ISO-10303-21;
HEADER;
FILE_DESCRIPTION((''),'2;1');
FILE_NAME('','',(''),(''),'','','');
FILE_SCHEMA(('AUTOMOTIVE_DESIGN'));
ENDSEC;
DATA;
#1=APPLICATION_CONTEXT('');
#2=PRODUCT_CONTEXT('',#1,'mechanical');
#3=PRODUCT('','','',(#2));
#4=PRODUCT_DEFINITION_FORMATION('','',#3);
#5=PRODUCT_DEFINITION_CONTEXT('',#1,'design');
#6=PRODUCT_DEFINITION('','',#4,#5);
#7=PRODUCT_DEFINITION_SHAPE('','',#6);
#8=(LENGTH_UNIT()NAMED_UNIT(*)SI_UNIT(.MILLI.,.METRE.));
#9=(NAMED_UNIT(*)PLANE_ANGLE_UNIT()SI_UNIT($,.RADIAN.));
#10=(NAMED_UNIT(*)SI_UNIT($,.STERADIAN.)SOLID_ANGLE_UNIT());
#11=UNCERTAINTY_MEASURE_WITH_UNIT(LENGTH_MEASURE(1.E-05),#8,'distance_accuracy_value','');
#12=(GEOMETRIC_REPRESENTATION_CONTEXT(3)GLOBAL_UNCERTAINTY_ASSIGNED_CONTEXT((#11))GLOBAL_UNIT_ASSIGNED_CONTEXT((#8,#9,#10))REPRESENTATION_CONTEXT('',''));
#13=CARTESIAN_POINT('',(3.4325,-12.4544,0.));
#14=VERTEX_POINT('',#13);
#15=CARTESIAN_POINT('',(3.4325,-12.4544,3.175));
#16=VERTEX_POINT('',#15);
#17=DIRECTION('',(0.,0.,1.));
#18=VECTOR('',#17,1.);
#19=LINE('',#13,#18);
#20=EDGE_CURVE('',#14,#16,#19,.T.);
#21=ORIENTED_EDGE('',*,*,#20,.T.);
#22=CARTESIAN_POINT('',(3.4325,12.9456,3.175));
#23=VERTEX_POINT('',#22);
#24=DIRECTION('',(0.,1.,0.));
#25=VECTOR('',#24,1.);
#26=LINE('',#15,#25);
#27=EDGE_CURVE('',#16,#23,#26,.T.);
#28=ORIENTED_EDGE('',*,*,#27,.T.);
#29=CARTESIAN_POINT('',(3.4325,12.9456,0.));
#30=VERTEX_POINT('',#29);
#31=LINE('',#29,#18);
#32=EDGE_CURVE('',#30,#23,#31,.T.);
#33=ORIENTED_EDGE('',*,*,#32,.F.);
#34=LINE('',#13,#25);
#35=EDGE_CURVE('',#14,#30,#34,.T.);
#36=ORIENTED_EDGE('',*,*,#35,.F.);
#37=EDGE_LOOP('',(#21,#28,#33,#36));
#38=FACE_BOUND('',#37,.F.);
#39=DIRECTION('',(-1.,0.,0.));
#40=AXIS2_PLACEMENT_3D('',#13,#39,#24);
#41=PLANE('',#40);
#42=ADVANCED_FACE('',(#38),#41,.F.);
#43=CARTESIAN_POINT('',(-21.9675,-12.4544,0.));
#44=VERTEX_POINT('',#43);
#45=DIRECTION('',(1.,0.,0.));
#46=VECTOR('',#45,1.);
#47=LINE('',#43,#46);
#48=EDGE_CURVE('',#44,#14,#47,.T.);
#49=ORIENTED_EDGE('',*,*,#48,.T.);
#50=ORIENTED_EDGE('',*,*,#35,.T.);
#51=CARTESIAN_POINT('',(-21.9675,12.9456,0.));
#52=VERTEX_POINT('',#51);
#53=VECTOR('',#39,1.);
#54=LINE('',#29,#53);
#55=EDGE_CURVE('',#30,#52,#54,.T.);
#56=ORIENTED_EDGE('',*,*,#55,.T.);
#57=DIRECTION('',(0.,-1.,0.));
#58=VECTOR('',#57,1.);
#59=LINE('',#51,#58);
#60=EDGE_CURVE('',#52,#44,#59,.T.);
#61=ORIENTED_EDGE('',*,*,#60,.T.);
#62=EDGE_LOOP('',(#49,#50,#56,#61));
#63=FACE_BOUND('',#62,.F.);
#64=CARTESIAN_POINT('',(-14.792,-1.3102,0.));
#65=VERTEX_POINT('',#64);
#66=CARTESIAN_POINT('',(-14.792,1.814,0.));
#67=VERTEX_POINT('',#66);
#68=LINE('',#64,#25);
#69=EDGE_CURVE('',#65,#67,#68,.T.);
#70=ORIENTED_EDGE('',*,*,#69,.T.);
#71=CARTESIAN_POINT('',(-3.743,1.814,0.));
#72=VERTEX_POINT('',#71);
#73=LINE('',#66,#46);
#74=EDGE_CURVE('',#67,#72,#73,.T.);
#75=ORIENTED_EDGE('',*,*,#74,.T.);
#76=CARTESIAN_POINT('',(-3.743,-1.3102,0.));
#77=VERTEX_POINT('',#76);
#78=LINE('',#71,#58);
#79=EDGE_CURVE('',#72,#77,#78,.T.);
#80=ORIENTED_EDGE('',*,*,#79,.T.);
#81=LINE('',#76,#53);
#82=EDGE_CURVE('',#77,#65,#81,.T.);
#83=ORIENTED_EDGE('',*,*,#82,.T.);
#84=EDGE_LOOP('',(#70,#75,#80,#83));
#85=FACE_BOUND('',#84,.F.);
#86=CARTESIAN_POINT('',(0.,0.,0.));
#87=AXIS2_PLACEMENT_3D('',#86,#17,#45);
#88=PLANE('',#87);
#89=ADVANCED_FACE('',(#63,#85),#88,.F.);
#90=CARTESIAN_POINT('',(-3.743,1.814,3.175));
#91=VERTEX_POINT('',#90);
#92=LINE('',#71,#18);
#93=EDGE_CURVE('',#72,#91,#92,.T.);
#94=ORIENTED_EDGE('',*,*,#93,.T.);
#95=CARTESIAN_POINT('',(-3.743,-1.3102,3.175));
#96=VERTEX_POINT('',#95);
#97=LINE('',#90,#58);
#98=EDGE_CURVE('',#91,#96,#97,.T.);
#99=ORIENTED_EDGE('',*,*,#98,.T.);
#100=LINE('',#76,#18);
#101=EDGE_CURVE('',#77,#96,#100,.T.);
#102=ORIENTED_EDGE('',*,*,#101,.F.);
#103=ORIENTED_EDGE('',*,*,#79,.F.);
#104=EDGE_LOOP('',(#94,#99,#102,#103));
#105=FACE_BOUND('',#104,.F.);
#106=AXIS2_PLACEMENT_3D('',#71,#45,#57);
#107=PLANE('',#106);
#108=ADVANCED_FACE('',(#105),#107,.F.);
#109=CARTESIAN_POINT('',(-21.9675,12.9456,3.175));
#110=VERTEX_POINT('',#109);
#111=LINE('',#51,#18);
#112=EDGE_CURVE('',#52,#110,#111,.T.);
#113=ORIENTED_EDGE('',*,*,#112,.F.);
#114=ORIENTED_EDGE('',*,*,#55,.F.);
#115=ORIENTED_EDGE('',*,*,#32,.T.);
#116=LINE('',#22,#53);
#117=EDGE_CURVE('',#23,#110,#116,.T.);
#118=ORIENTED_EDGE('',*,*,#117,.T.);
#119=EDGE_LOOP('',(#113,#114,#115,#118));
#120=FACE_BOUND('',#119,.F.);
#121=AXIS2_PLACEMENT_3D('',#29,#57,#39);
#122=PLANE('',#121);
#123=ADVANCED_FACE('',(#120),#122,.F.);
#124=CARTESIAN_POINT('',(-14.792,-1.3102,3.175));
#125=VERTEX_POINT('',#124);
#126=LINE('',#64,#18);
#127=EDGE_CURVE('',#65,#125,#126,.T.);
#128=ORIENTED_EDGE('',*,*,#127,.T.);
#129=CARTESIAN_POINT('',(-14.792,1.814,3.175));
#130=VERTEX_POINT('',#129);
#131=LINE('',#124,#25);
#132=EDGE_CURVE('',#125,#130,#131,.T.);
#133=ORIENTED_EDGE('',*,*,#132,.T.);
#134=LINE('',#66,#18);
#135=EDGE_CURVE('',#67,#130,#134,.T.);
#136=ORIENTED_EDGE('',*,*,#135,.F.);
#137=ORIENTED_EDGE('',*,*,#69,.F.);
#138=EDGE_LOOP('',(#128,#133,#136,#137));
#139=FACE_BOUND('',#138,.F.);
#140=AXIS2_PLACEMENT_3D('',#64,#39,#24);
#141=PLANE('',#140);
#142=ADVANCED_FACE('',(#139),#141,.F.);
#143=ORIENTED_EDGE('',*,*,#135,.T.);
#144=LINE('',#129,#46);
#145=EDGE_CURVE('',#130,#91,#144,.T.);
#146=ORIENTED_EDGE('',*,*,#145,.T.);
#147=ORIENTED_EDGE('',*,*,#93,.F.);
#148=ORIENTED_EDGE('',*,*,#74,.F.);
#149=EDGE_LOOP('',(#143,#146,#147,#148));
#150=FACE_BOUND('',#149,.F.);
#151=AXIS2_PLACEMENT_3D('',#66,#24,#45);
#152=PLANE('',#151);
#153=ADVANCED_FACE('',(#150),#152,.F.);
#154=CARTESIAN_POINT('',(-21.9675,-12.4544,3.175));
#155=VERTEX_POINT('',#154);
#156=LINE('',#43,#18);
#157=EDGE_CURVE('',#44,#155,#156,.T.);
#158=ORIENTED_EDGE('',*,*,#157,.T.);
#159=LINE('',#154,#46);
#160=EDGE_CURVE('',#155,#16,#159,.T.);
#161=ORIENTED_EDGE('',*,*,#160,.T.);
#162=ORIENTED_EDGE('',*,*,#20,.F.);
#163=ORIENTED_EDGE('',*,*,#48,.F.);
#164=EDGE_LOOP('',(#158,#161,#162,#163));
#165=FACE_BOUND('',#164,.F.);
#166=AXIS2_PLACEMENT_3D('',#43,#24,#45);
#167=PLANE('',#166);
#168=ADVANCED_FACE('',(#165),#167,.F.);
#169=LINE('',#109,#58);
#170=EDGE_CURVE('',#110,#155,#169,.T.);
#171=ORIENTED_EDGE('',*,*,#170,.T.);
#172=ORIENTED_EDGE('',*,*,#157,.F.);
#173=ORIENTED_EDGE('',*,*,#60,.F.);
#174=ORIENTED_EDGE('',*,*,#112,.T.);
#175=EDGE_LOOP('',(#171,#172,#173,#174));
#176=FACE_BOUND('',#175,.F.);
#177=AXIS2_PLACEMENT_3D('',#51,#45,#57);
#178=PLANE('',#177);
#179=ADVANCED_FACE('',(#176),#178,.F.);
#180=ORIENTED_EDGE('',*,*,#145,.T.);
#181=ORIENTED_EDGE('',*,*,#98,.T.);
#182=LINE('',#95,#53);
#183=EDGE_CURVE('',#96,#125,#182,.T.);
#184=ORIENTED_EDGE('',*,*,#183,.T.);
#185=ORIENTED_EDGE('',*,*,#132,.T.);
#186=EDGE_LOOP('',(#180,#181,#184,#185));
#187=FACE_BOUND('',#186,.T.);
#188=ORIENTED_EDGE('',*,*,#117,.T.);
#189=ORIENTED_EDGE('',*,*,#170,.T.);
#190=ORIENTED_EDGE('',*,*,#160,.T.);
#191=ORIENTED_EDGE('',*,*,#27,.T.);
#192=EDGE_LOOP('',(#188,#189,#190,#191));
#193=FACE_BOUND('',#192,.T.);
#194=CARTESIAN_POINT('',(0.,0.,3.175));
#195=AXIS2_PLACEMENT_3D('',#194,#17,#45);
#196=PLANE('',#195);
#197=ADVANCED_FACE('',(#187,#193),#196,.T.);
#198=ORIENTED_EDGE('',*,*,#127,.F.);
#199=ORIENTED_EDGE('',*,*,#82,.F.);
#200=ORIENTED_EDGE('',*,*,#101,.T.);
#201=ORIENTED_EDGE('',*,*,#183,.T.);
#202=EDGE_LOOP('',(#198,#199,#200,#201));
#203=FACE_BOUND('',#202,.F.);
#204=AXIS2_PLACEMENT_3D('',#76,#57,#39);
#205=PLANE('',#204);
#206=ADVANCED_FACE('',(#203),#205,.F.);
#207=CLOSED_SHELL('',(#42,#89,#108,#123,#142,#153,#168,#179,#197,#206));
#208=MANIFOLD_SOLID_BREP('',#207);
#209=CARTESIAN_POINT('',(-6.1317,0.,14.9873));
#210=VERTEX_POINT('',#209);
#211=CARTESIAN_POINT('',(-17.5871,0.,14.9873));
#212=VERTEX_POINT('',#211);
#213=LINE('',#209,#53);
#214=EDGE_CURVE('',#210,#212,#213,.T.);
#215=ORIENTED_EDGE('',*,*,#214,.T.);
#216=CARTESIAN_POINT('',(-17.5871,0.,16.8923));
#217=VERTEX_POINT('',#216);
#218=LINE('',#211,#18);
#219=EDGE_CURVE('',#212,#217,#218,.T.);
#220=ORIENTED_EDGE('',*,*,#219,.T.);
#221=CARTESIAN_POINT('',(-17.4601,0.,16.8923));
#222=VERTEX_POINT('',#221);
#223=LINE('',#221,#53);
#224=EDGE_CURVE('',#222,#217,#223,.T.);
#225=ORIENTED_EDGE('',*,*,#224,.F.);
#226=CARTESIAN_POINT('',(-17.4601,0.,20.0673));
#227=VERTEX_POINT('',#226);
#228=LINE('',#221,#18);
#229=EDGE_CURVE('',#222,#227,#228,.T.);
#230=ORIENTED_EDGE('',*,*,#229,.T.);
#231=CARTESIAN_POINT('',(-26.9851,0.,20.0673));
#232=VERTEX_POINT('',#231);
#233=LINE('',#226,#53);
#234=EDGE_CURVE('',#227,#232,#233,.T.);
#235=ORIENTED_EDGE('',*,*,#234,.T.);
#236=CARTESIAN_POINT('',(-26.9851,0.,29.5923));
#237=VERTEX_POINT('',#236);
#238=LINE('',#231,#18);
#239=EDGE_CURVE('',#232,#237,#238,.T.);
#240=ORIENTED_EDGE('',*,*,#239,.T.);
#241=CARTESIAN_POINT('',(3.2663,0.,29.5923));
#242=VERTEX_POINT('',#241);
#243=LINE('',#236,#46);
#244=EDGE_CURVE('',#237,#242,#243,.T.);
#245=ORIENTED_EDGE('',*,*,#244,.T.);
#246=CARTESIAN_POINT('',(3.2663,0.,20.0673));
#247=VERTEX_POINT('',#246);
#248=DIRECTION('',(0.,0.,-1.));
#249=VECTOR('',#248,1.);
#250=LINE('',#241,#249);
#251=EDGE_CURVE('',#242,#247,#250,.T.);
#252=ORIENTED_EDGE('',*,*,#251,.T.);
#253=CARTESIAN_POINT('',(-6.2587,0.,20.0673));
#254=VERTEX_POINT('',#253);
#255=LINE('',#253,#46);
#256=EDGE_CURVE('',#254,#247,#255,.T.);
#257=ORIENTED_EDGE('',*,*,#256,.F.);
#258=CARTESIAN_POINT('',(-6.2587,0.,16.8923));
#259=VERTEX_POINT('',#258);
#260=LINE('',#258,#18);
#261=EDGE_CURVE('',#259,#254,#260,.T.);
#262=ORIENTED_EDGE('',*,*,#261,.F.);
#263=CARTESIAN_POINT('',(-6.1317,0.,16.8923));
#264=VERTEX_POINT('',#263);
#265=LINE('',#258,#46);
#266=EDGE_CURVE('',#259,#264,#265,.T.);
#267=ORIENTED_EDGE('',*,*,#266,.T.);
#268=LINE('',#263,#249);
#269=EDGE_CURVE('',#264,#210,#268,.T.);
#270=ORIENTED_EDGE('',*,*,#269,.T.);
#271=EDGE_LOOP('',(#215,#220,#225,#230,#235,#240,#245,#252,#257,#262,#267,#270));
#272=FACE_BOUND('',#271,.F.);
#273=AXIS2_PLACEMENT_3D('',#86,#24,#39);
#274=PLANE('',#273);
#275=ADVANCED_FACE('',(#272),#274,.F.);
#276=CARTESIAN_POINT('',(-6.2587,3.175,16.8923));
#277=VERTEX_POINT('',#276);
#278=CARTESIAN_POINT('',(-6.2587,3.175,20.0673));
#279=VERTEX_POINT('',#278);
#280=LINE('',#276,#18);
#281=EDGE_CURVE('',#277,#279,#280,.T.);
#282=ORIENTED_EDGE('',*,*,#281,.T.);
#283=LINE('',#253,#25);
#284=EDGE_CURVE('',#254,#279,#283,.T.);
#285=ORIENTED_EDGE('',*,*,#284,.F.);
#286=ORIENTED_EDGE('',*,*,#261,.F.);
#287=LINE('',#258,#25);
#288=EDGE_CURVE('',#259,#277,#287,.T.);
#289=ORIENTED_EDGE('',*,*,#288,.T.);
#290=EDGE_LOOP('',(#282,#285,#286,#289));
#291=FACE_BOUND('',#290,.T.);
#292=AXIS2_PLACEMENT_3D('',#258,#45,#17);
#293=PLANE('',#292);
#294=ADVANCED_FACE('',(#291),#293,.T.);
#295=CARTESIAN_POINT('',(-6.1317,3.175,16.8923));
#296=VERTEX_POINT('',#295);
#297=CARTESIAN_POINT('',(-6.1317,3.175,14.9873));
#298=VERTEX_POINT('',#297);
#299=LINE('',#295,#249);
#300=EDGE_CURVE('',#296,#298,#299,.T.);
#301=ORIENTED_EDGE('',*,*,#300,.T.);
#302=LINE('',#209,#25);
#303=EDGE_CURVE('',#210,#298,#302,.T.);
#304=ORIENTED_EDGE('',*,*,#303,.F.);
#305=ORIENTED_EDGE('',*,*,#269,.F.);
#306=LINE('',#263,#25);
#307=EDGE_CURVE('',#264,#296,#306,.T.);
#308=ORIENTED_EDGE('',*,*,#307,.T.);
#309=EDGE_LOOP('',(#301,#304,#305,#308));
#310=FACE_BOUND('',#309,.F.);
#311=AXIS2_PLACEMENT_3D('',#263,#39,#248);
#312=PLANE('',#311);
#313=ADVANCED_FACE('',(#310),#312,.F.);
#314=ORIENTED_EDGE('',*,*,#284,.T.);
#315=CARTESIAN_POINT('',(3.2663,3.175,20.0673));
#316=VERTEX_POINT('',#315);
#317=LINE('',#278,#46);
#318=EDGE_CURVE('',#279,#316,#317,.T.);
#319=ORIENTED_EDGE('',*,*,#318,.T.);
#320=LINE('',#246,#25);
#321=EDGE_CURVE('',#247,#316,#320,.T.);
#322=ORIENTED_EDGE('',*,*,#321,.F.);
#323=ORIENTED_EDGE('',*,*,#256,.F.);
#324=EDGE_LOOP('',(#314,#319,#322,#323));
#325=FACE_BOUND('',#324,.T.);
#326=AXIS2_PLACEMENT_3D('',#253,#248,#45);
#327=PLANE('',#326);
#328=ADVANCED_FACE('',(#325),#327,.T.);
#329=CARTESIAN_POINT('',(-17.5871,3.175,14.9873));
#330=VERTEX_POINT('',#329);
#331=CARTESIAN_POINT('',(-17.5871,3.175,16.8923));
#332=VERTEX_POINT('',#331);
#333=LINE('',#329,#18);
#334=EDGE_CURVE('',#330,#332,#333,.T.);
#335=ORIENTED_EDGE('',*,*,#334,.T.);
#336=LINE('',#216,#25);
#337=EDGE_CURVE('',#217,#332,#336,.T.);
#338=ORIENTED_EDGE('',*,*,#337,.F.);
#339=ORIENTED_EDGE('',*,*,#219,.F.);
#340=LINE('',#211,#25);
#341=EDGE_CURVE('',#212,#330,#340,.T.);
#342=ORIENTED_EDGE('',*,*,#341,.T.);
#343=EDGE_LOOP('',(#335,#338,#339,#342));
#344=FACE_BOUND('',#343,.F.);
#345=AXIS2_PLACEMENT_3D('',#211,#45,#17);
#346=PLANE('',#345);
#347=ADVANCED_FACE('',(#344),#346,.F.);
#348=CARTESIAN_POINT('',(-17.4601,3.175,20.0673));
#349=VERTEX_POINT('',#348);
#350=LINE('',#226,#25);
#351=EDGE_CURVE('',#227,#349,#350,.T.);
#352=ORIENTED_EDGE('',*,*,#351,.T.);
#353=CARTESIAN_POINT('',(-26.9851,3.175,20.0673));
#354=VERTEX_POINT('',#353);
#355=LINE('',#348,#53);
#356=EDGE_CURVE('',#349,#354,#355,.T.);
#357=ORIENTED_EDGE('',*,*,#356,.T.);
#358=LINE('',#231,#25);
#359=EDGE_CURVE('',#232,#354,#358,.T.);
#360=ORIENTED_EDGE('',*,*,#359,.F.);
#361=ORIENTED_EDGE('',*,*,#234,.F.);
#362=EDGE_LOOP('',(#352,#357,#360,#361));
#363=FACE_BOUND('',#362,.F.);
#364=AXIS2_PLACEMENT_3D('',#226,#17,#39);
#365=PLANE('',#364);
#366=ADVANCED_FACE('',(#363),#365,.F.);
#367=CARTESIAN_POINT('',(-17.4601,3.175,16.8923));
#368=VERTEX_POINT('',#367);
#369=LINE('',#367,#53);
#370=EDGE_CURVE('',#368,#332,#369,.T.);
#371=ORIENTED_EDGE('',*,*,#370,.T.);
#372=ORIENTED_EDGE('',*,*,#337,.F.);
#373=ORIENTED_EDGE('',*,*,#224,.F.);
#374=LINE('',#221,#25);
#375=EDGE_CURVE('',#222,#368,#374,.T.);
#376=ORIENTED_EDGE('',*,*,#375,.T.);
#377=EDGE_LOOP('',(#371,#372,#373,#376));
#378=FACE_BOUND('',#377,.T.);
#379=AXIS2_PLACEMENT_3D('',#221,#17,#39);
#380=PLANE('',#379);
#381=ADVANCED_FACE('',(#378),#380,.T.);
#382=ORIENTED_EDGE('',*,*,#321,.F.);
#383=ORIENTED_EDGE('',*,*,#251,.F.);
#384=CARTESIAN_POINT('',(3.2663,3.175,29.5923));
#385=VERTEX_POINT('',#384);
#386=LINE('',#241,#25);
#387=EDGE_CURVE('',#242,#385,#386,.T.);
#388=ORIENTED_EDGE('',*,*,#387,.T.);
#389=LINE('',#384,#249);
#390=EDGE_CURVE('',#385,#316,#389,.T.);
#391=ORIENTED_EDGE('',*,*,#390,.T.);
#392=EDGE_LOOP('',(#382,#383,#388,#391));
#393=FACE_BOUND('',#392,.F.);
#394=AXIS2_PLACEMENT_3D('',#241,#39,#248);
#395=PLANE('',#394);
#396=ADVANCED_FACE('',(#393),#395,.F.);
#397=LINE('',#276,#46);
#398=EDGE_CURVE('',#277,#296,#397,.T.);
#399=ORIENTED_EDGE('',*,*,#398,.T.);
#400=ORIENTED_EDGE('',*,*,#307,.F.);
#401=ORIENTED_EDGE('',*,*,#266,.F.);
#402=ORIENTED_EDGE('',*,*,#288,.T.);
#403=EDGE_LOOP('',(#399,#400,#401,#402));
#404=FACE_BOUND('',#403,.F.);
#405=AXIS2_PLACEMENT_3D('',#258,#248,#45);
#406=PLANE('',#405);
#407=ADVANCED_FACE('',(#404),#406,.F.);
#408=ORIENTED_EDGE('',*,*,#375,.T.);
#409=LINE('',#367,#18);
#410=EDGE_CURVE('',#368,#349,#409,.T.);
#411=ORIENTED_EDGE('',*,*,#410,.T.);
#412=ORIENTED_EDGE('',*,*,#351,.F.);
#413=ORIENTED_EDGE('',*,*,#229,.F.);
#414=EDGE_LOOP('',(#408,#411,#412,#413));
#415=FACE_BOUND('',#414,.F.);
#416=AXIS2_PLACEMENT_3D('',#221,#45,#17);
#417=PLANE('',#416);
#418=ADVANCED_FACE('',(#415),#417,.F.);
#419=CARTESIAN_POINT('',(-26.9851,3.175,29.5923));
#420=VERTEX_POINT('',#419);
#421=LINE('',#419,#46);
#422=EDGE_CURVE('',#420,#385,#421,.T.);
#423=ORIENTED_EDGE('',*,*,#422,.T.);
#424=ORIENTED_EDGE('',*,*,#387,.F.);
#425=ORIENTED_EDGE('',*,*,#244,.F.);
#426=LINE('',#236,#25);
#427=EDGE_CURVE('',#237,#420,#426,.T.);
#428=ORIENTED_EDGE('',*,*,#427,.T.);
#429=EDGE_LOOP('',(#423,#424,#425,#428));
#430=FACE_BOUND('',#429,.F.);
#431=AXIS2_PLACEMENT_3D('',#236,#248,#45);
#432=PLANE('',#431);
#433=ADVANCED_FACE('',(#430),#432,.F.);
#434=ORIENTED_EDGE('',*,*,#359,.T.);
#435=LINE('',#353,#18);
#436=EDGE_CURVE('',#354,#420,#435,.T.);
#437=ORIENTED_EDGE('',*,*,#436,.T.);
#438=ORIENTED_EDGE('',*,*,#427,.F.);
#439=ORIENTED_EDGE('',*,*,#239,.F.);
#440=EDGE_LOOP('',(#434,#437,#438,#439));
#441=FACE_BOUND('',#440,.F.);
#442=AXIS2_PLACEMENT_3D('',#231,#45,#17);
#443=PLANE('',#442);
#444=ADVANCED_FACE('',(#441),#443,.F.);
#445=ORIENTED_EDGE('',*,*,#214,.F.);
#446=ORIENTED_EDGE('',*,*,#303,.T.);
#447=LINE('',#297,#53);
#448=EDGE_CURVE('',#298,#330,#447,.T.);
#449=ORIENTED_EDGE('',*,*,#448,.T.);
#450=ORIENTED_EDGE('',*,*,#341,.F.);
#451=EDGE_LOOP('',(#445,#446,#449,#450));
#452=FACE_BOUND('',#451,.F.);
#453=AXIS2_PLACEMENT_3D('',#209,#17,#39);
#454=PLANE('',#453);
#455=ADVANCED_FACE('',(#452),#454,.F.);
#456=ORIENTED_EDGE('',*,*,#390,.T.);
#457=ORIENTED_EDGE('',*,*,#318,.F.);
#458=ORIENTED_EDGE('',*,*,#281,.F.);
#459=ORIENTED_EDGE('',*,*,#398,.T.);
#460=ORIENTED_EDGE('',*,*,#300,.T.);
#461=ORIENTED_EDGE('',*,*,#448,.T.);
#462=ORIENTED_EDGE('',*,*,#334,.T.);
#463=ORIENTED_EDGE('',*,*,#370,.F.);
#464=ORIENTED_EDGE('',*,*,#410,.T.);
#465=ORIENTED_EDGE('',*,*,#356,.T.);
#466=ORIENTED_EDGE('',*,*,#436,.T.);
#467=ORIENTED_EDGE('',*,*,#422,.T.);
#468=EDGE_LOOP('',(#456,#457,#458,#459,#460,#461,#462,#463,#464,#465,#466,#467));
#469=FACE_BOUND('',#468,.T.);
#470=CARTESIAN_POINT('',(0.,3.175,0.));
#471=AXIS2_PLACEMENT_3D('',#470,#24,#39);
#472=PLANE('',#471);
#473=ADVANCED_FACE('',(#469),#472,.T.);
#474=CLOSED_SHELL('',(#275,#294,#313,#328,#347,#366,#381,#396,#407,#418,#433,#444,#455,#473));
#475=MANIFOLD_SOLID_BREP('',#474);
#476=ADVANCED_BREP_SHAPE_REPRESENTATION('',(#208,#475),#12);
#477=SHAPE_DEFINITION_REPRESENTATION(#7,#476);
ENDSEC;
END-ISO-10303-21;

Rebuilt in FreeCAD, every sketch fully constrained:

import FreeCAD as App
import Part
import Sketcher
from FreeCAD import Vector
Q = App.Units.Quantity


def add_polygon(sketch, points):
    """Adds a closed chain of lines whose ends are joined by coincident constraints."""
    first, n = sketch.GeometryCount, len(points)
    for a, b in zip(points, points[1:] + points[:1]):
        sketch.addGeometry(Part.LineSegment(App.Vector(*a, 0), App.Vector(*b, 0)), False)
    for i in range(n):
        sketch.addConstraint(Sketcher.Constraint("Coincident", first + i, 2, first + (i + 1) % n, 1))

doc = App.newDocument("Part")
body = doc.addObject("PartDesign::Body", "Body")
body.AllowCompound = True

sketch1 = body.newObject("Sketcher::SketchObject", "Sketch")
sketch1.AttachmentSupport = (doc.getObject("XY_Plane"), [""])
sketch1.MapMode = "FlatFace"
add_polygon(sketch1, [(-22, 12.9), (-22, -12.5), (3.4, -12.5), (3.4, 12.9)])
add_polygon(sketch1, [(-3.7, -1.3), (-14.8, -1.3), (-14.8, 1.8), (-3.7, 1.8)])
sketch1.addConstraint(Sketcher.Constraint("Vertical", 0))
sketch1.addConstraint(Sketcher.Constraint("Horizontal", 1))
sketch1.addConstraint(Sketcher.Constraint("Vertical", 2))
sketch1.addConstraint(Sketcher.Constraint("Horizontal", 3))
sketch1.addConstraint(Sketcher.Constraint("Horizontal", 4))
sketch1.addConstraint(Sketcher.Constraint("Vertical", 5))
sketch1.addConstraint(Sketcher.Constraint("Horizontal", 6))
sketch1.addConstraint(Sketcher.Constraint("Vertical", 7))
sketch1.addConstraint(Sketcher.Constraint("Equal", 3, 0))
sketch1.addConstraint(Sketcher.Constraint("DistanceX", 1, 1, 1, 2, Q("1 in")))
sketch1.addConstraint(Sketcher.Constraint("DistanceX", 4, 2, 4, 1, Q("0.435 in")))
sketch1.addConstraint(Sketcher.Constraint("DistanceY", 5, 1, 5, 2, Q("0.123 in")))
sketch1.addConstraint(Sketcher.Constraint("DistanceX", 0, 2, 4, 2, Q("0.2825 in")))
sketch1.addConstraint(Sketcher.Constraint("DistanceX", 0, 2, -1, 1, Q("21.9675 mm")))
sketch1.addConstraint(Sketcher.Constraint("DistanceY", 0, 2, -1, 1, Q("12.4544 mm")))
sketch1.addConstraint(Sketcher.Constraint("DistanceY", 4, 2, -1, 1, Q("1.3102 mm")))
pad1 = body.newObject("PartDesign::Pad", "Pad")
pad1.Profile = sketch1
pad1.Length = Q("0.125 in")

sketch2 = body.newObject("Sketcher::SketchObject", "Sketch001")
sketch2.AttachmentSupport = (doc.getObject("XZ_Plane"), [""])
sketch2.MapMode = "FlatFace"
add_polygon(sketch2, [(-17.59, 16.89), (-17.46, 16.89), (-17.46, 20.07), (-26.99, 20.07), (-26.99, 29.59), (3.27, 29.59), (3.27, 20.07), (-6.26, 20.07), (-6.26, 16.89), (-6.13, 16.89), (-6.13, 14.99), (-17.59, 14.99)])
sketch2.addConstraint(Sketcher.Constraint("Horizontal", 0))
sketch2.addConstraint(Sketcher.Constraint("Vertical", 1))
sketch2.addConstraint(Sketcher.Constraint("Horizontal", 2))
sketch2.addConstraint(Sketcher.Constraint("Vertical", 3))
sketch2.addConstraint(Sketcher.Constraint("Horizontal", 4))
sketch2.addConstraint(Sketcher.Constraint("Vertical", 5))
sketch2.addConstraint(Sketcher.Constraint("Horizontal", 6))
sketch2.addConstraint(Sketcher.Constraint("Vertical", 7))
sketch2.addConstraint(Sketcher.Constraint("Horizontal", 8))
sketch2.addConstraint(Sketcher.Constraint("Vertical", 9))
sketch2.addConstraint(Sketcher.Constraint("Horizontal", 10))
sketch2.addConstraint(Sketcher.Constraint("Vertical", 11))
sketch2.addConstraint(Sketcher.Constraint("Horizontal", 2, 2, 5, 2))
sketch2.addConstraint(Sketcher.Constraint("Horizontal", 0, 2, 7, 2))
sketch2.addConstraint(Sketcher.Constraint("Equal", 2, 6))
sketch2.addConstraint(Sketcher.Constraint("Equal", 0, 8))
sketch2.addConstraint(Sketcher.Constraint("Equal", 6, 3))
sketch2.addConstraint(Sketcher.Constraint("DistanceX", 0, 1, 0, 2, Q("0.005 in")))
sketch2.addConstraint(Sketcher.Constraint("DistanceX", 2, 2, 2, 1, Q("0.375 in")))
sketch2.addConstraint(Sketcher.Constraint("DistanceX", 10, 2, 10, 1, Q("0.451 in")))
sketch2.addConstraint(Sketcher.Constraint("DistanceY", 9, 2, 9, 1, Q("0.075 in")))
sketch2.addConstraint(Sketcher.Constraint("DistanceY", 0, 2, 3, 2, Q("0.5 in")))
sketch2.addConstraint(Sketcher.Constraint("DistanceX", 0, 2, -1, 1, Q("0.6874 in")))
sketch2.addConstraint(Sketcher.Constraint("DistanceY", -1, 1, 0, 2, Q("16.8923 mm")))
pad2 = body.newObject("PartDesign::Pad", "Pad001")
pad2.Profile = sketch2
pad2.Length = Q("0.125 in")
pad2.Reversed = True

doc.recompute()
